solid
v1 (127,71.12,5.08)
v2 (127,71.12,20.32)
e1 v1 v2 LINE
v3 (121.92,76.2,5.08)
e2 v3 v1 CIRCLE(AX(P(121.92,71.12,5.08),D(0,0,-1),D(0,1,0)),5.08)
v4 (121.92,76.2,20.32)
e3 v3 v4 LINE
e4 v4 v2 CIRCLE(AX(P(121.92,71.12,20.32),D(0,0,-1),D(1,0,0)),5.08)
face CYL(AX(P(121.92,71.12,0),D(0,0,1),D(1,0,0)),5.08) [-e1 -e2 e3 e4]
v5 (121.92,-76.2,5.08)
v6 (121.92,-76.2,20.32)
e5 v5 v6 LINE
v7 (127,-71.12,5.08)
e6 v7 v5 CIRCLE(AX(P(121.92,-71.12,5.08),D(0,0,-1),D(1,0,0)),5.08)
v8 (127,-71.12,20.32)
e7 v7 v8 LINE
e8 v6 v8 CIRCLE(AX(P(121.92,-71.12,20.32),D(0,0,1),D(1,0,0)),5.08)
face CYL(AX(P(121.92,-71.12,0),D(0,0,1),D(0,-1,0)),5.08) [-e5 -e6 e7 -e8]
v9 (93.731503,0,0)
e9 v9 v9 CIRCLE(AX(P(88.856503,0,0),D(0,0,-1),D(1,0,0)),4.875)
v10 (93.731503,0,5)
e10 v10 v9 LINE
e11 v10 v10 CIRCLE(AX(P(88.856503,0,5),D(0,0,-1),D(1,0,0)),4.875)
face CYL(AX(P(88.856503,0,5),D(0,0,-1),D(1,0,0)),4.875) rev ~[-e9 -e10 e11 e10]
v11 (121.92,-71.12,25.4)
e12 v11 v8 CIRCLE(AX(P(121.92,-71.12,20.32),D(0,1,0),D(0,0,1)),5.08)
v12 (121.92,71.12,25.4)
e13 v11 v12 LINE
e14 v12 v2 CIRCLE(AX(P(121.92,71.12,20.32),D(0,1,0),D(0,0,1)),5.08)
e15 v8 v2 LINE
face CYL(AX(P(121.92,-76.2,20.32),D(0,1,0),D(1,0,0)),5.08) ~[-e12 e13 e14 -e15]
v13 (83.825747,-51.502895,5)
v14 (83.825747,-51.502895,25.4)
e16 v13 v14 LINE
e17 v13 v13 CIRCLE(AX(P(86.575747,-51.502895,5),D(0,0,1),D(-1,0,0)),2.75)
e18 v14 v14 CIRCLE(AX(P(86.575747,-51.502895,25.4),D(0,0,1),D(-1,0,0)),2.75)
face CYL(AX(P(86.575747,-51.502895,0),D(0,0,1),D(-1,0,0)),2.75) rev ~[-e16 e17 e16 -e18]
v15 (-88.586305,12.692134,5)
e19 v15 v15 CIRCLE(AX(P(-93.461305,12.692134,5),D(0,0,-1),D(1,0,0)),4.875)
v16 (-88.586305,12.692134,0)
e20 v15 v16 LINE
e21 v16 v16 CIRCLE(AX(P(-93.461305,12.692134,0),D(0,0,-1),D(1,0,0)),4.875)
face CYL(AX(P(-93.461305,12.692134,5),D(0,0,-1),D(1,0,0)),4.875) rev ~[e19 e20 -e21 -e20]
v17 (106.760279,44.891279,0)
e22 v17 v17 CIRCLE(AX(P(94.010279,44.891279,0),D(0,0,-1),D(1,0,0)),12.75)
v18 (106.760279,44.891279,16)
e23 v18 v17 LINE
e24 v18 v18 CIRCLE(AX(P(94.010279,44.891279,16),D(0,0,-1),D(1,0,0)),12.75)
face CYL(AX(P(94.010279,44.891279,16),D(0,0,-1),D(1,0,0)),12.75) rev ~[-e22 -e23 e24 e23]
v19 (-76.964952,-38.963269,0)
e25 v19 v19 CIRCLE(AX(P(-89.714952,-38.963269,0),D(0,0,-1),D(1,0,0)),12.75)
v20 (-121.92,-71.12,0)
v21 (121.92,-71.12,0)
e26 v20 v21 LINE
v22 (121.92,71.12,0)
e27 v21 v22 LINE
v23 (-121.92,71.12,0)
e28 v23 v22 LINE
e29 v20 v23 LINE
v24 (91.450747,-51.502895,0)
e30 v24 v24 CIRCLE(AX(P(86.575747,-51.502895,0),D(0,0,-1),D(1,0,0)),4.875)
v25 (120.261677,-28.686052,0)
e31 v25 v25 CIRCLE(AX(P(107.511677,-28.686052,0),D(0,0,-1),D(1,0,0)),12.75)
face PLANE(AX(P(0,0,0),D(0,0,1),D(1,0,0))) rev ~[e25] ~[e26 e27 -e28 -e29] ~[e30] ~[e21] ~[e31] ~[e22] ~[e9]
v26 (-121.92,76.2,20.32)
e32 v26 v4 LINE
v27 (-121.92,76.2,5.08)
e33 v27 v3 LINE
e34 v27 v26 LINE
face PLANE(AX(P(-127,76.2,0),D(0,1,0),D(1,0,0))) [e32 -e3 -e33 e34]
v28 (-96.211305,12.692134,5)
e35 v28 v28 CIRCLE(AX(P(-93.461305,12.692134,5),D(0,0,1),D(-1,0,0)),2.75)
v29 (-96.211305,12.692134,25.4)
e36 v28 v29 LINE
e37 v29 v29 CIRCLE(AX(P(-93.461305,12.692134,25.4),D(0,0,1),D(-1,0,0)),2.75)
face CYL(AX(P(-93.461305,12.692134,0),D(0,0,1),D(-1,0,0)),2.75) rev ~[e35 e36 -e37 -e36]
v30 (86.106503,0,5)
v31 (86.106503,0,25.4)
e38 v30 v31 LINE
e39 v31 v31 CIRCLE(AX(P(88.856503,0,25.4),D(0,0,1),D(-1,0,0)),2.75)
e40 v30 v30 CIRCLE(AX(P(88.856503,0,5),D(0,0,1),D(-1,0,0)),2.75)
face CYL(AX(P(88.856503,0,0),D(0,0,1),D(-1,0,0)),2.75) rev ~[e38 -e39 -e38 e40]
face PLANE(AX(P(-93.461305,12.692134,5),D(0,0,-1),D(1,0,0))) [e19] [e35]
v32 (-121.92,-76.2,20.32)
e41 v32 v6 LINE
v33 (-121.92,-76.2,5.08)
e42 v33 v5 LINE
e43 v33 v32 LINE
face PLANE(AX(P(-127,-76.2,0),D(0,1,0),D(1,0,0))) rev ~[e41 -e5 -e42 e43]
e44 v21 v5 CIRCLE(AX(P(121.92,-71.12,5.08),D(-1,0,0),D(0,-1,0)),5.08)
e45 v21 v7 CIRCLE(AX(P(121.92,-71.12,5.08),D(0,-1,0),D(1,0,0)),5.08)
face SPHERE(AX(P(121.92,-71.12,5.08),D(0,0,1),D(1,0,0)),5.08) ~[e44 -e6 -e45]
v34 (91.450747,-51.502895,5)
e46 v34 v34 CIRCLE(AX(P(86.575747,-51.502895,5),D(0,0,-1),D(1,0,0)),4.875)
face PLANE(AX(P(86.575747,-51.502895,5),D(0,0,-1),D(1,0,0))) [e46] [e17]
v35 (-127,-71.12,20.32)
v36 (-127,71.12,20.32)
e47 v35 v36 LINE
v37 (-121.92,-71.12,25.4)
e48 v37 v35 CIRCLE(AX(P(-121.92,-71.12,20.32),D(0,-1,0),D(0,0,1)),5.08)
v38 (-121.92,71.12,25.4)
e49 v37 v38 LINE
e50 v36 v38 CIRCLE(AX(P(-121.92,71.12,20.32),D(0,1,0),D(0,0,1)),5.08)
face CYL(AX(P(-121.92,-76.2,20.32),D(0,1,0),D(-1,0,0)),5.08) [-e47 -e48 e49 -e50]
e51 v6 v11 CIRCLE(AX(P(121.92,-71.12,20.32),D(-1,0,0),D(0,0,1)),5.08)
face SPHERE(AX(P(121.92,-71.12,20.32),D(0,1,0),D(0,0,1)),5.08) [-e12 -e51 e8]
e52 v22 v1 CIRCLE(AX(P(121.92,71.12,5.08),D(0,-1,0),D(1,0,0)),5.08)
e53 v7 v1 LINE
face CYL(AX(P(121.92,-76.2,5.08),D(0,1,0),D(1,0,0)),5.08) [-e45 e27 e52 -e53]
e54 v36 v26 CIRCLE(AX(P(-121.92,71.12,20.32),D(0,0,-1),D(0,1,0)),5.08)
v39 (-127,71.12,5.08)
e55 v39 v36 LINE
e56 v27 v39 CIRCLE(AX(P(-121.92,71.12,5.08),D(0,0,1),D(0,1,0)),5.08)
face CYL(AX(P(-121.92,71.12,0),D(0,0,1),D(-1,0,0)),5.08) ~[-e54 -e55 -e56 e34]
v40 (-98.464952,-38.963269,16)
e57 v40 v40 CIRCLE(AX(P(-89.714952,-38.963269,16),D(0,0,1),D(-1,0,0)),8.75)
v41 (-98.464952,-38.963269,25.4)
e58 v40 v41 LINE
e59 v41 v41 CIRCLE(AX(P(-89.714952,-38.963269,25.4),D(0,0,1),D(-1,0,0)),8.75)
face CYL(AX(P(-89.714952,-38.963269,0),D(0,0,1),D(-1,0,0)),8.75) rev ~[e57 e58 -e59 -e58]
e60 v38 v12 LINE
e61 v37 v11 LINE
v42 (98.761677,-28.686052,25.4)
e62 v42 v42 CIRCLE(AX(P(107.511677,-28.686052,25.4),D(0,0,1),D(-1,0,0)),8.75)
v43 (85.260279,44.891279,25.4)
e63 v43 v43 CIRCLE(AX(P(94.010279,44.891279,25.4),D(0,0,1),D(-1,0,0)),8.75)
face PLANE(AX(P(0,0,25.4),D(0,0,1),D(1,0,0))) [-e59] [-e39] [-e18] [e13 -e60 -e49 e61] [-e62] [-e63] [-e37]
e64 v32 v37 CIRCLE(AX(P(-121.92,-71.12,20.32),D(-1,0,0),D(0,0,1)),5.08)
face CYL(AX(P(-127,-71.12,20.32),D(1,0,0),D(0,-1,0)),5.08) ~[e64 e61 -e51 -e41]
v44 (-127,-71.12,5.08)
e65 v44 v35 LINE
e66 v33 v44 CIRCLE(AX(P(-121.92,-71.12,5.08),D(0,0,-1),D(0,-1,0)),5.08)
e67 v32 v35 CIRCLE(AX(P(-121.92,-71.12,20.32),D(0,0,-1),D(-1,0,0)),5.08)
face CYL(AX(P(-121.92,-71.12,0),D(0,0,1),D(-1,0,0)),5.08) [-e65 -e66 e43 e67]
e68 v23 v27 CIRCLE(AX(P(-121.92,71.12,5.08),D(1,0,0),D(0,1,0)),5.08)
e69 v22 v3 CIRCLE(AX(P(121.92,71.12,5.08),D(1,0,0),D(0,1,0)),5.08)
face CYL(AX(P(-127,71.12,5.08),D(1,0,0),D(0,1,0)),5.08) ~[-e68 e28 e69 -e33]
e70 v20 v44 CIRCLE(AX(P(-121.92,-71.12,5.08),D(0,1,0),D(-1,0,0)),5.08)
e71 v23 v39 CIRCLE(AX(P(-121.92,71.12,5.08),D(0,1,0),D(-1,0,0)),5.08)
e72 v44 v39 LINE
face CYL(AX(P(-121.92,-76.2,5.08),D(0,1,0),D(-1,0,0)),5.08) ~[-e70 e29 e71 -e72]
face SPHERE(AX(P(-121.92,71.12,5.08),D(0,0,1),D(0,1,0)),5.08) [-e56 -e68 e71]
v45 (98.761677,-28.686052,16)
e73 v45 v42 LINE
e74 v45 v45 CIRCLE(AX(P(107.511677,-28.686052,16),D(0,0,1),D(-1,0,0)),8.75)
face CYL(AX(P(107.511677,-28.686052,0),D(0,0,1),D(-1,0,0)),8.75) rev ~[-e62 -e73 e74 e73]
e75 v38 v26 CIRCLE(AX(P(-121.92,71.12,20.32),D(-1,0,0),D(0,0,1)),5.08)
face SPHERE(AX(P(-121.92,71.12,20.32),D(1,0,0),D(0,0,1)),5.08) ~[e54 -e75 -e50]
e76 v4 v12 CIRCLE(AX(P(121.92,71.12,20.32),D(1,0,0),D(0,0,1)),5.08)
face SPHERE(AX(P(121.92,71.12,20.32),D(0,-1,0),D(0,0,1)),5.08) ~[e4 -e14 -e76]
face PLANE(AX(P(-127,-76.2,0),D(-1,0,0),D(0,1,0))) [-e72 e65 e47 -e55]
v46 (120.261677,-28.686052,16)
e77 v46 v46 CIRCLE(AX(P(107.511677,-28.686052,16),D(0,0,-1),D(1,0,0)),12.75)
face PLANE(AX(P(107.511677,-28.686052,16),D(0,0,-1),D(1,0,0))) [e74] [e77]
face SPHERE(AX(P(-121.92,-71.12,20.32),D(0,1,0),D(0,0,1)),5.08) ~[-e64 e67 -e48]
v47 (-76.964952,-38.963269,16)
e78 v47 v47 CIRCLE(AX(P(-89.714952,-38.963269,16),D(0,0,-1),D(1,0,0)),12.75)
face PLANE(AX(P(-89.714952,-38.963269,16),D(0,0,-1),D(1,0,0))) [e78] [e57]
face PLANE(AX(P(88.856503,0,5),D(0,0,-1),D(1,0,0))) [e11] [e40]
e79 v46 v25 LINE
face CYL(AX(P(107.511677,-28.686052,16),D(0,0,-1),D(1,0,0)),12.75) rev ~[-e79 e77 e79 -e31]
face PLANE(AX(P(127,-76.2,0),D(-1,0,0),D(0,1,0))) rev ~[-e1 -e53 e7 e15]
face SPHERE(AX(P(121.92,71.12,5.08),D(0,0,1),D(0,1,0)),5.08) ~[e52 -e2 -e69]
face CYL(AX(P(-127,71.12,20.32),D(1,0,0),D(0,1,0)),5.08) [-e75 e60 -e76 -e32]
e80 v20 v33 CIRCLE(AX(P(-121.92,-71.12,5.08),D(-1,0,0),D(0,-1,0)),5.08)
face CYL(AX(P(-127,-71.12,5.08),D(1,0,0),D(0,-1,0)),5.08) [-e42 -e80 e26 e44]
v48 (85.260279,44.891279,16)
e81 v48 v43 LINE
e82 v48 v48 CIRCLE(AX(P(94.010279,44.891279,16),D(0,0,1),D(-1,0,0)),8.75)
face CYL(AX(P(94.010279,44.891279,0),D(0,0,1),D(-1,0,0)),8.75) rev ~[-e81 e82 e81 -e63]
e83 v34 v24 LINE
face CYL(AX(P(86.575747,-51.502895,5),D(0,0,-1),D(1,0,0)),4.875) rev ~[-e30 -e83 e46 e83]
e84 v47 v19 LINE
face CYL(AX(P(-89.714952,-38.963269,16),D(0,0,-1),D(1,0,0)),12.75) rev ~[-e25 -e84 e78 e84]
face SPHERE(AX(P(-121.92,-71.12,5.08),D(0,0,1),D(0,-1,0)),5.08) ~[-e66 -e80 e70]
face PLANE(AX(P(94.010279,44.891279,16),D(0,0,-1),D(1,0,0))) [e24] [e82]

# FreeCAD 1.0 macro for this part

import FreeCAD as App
import Part
import Sketcher
Q = App.Units.Quantity

doc = App.newDocument("Part")
body = doc.addObject("PartDesign::Body", "Body")

# Sketch on XY plane
sketch1 = body.newObject("Sketcher::SketchObject", "Sketch")
sketch1.AttachmentSupport = (doc.getObject("XY_Plane"), [""])
sketch1.MapMode = "FlatFace"
sketch1.addGeometry(Part.LineSegment(App.Vector(-127, 76, 0), App.Vector(-127, -76, 0)), False)
sketch1.addGeometry(Part.LineSegment(App.Vector(-127, -76, 0), App.Vector(127, -76, 0)), False)
sketch1.addGeometry(Part.LineSegment(App.Vector(127, -76, 0), App.Vector(127, 76, 0)), False)
sketch1.addGeometry(Part.LineSegment(App.Vector(127, 76, 0), App.Vector(-127, 76, 0)), False)
sketch1.addConstraint(Sketcher.Constraint("Coincident", 0, 2, 1, 1))
sketch1.addConstraint(Sketcher.Constraint("Coincident", 1, 2, 2, 1))
sketch1.addConstraint(Sketcher.Constraint("Coincident", 2, 2, 3, 1))
sketch1.addConstraint(Sketcher.Constraint("Coincident", 3, 2, 0, 1))
sketch1.addConstraint(Sketcher.Constraint("Vertical", 0))
sketch1.addConstraint(Sketcher.Constraint("Horizontal", 1))
sketch1.addConstraint(Sketcher.Constraint("Vertical", 2))
sketch1.addConstraint(Sketcher.Constraint("Horizontal", 3))
sketch1.addConstraint(Sketcher.Constraint("Symmetric", 0, 2, 2, 2, -1, 1))
sketch1.addConstraint(Sketcher.Constraint("DistanceX", 1, 1, 1, 2, Q("10 in")))
sketch1.addConstraint(Sketcher.Constraint("DistanceY", 0, 2, 0, 1, Q("6 in")))
pad1 = body.newObject("PartDesign::Pad", "Pad")
pad1.Profile = sketch1
pad1.Length = Q("1 in")
doc.recompute()

fillet = body.newObject("PartDesign::Fillet", "Fillet")
fillet.Base = (pad1, ["Edge1"])
fillet.UseAllEdges = True
fillet.Radius = Q("0.2 in")

# Sketch on XY plane
sketch2 = body.newObject("Sketcher::SketchObject", "Sketch001")
sketch2.AttachmentSupport = (doc.getObject("XY_Plane"), [""])
sketch2.MapMode = "FlatFace"
sketch2.addGeometry(Part.Circle(App.Vector(108, -29, 0), App.Vector(0, 0, 1), 9), False)
sketch2.addGeometry(Part.Circle(App.Vector(94, 45, 0), App.Vector(0, 0, 1), 9), False)
sketch2.addGeometry(Part.Circle(App.Vector(-90, -39, 0), App.Vector(0, 0, 1), 9), False)
sketch2.addConstraint(Sketcher.Constraint("Equal", 0, 1))
sketch2.addConstraint(Sketcher.Constraint("Equal", 1, 2))
sketch2.addConstraint(Sketcher.Constraint("Diameter", 0, 17.5))
sketch2.addConstraint(Sketcher.Constraint("DistanceX", 1, 3, 0, 3, 13.501398))
sketch2.addConstraint(Sketcher.Constraint("DistanceX", -1, 1, 1, 3, 94.010279))
sketch2.addConstraint(Sketcher.Constraint("DistanceY", -1, 1, 1, 3, 44.891279))
sketch2.addConstraint(Sketcher.Constraint("DistanceX", 2, 3, -1, 1, 89.714952))
sketch2.addConstraint(Sketcher.Constraint("DistanceY", 2, 3, -1, 1, 38.963269))
sketch2.addConstraint(Sketcher.Constraint("DistanceY", 0, 3, 1, 3, 73.577331))
doc.recompute()
hole = body.newObject("PartDesign::Hole", "Hole")
hole.Profile = sketch2
hole.ThreadType = "None"
hole.Diameter = 17.5
hole.DepthType = "ThroughAll"
hole.HoleCutType = "Counterbore"
hole.HoleCutDiameter = 25.5
hole.HoleCutDepth = 16
hole.Reversed = True

# Sketch on XY plane
sketch3 = body.newObject("Sketcher::SketchObject", "Sketch002")
sketch3.AttachmentSupport = (doc.getObject("XY_Plane"), [""])
sketch3.MapMode = "FlatFace"
sketch3.addGeometry(Part.Circle(App.Vector(-93.5, 12.7, 0), App.Vector(0, 0, 1), 2.8), False)
sketch3.addGeometry(Part.Circle(App.Vector(88.9, 0, 0), App.Vector(0, 0, 1), 2.8), False)
sketch3.addGeometry(Part.Circle(App.Vector(86.6, -51.5, 0), App.Vector(0, 0, 1), 2.8), False)
sketch3.addConstraint(Sketcher.Constraint("Equal", 0, 1))
sketch3.addConstraint(Sketcher.Constraint("Equal", 1, 2))
sketch3.addConstraint(Sketcher.Constraint("PointOnObject", 1, 3, -1))
sketch3.addConstraint(Sketcher.Constraint("Diameter", 0, 5.5))
sketch3.addConstraint(Sketcher.Constraint("DistanceX", 0, 3, 1, 3, 182.317808))
sketch3.addConstraint(Sketcher.Constraint("DistanceX", 0, 3, 2, 3, 180.037051))
sketch3.addConstraint(Sketcher.Constraint("DistanceY", 2, 3, 0, 3, 64.195029))
sketch3.addConstraint(Sketcher.Constraint("DistanceX", 0, 3, -1, 1, 93.461305))
sketch3.addConstraint(Sketcher.Constraint("DistanceY", -1, 1, 0, 3, 12.692134))
doc.recompute()
hole2 = body.newObject("PartDesign::Hole", "Hole001")
hole2.Profile = sketch3
hole2.ThreadType = "None"
hole2.Diameter = 5.5
hole2.DepthType = "ThroughAll"
hole2.HoleCutType = "Counterbore"
hole2.HoleCutDiameter = 9.75
hole2.HoleCutDepth = 5
hole2.Reversed = True

doc.recompute()
